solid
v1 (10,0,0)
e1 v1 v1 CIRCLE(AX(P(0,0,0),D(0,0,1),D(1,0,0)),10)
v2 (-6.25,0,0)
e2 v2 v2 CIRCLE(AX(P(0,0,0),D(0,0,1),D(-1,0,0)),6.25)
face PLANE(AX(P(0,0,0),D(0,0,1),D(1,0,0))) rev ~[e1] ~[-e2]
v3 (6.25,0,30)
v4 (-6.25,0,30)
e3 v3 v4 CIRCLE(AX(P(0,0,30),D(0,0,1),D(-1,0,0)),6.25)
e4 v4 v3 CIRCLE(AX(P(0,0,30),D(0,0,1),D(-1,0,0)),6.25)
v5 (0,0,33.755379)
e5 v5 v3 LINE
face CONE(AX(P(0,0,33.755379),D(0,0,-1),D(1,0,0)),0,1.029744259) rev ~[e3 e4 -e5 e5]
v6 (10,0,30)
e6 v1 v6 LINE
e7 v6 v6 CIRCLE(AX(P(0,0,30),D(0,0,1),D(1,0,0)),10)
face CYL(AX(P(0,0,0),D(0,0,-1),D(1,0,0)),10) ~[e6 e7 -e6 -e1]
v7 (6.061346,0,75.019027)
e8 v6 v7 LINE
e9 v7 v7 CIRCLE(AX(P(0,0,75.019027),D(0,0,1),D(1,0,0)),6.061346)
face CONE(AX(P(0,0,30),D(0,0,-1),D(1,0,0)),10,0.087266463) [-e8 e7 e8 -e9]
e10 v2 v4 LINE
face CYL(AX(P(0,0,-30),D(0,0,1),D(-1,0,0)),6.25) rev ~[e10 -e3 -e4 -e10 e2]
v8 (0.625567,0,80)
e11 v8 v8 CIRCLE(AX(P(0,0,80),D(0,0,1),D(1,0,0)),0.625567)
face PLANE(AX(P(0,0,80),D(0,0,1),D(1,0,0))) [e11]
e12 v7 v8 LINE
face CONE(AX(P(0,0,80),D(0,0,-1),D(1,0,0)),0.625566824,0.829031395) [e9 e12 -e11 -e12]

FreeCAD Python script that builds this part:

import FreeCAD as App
import Part
import Sketcher
Q = App.Units.Quantity


def edges_at(feature, points):
    """Names of the edges that pass closest to the given points."""
    edges = feature.Shape.Edges
    near = lambda p: min(range(len(edges)), key=lambda i: edges[i].distToShape(Part.Vertex(*p))[0])
    return sorted({f"Edge{near(p) + 1}" for p in points})

doc = App.newDocument("Part")
body = doc.addObject("PartDesign::Body", "Body")

sketch1 = body.newObject("Sketcher::SketchObject", "Sketch")
sketch1.AttachmentSupport = (doc.getObject("XY_Plane"), [""])
sketch1.MapMode = "FlatFace"
sketch1.addGeometry(Part.Circle(App.Vector(0, 0, 0), App.Vector(0, 0, 1), 10), False)
sketch1.addConstraint(Sketcher.Constraint("Coincident", 0, 3, -1, 1))
sketch1.addConstraint(Sketcher.Constraint("Diameter", 0, Q("20 mm")))
pad1 = body.newObject("PartDesign::Pad", "Pad")
pad1.Profile = sketch1
pad1.Length = 80
doc.recompute()

chamfer = body.newObject("PartDesign::Chamfer", "Chamfer")
chamfer.Base = (pad1, edges_at(pad1, [(-10, 0, 80)]))
chamfer.ChamferType = "Two distances"
chamfer.Size = 50
chamfer.Size2 = 4.374433
doc.recompute()

chamfer2 = body.newObject("PartDesign::Chamfer", "Chamfer001")
chamfer2.Base = (chamfer, edges_at(chamfer, [(-5.626, 0, 80)]))
chamfer2.Size = 5

sketch2 = body.newObject("Sketcher::SketchObject", "Sketch001")
sketch2.AttachmentSupport = (doc.getObject("XY_Plane"), [""])
sketch2.MapMode = "FlatFace"
sketch2.addGeometry(Part.Circle(App.Vector(0, 0, 0), App.Vector(0, 0, 1), 6), False)
sketch2.addConstraint(Sketcher.Constraint("Coincident", 0, 3, -1, 1))
sketch2.addConstraint(Sketcher.Constraint("Diameter", 0, Q("12.5 mm")))
doc.recompute()
hole = body.newObject("PartDesign::Hole", "Hole")
hole.Profile = sketch2
hole.ThreadType = "None"
hole.Diameter = 12.5
hole.DepthType = "Dimension"
hole.Depth = 30
hole.DrillPoint = "Angled"
hole.DrillPointAngle = 118
hole.Reversed = True

doc.recompute()
